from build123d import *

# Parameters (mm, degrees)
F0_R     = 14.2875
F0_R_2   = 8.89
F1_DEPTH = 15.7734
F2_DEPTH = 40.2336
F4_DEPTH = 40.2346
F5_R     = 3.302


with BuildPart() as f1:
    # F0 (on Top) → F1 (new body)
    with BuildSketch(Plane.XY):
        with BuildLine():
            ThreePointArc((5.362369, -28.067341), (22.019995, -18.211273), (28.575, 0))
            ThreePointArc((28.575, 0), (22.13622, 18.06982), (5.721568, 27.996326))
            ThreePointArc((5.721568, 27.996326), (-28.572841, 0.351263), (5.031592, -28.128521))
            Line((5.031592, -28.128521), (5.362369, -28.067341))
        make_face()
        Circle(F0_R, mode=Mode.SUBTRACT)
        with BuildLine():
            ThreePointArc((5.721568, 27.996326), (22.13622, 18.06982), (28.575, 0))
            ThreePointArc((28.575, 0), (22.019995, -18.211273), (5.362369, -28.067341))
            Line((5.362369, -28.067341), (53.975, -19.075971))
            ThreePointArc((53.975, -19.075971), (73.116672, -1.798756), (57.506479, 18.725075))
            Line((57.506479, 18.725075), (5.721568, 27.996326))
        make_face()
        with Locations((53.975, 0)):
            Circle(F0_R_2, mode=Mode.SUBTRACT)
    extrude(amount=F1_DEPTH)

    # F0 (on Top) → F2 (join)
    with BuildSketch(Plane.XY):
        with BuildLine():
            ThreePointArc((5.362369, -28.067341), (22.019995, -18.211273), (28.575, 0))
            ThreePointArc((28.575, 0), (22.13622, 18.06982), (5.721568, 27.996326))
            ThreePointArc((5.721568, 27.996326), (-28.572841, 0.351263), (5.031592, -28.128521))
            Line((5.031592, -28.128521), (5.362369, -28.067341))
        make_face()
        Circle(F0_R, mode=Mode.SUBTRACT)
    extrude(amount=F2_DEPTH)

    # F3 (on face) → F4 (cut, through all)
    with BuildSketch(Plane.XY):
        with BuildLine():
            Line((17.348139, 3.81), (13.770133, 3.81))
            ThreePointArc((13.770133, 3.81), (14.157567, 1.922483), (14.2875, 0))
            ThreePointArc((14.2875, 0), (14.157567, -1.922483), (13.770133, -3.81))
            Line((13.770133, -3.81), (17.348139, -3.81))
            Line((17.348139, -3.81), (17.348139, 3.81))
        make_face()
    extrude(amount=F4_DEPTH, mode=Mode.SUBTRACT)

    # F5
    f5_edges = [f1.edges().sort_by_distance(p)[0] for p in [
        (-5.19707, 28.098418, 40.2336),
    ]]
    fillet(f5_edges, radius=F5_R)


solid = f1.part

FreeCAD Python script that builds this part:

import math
import FreeCAD as App
import Part
import Sketcher
Q = App.Units.Quantity


def edges_at(feature, points):
    """Names of the edges that pass closest to the given points."""
    edges = feature.Shape.Edges
    near = lambda p: min(range(len(edges)), key=lambda i: edges[i].distToShape(Part.Vertex(*p))[0])
    return sorted({f"Edge{near(p) + 1}" for p in points})

doc = App.newDocument("Part")
body = doc.addObject("PartDesign::Body", "Body")

# Sketch on XY plane
sketch1 = doc.addObject("Sketcher::SketchObject", "Sketch")
body.addObject(sketch1)
sketch1.AttachmentSupport = (doc.XY_Plane, [""])
sketch1.MapMode = "FlatFace"
sketch1.addGeometry(Part.LineSegment(App.Vector(5.03, -28.13, 0), App.Vector(5.36, -28.07, 0)), False)
sketch1.addGeometry(Part.LineSegment(App.Vector(5.36, -28.07, 0), App.Vector(53.98, -19.08, 0)), False)
sketch1.addGeometry(Part.ArcOfCircle(Part.Circle(App.Vector(54.15, -0.03, 0), App.Vector(0, 0, 1), 19.05), math.radians(-91), math.radians(80)), False)
sketch1.addGeometry(Part.LineSegment(App.Vector(57.51, 18.73, 0), App.Vector(5.72, 28, 0)), False)
sketch1.addGeometry(Part.ArcOfCircle(Part.Circle(App.Vector(0, 0, 0), App.Vector(0, 0, 1), 28.57), math.radians(78), math.radians(280)), False)
sketch1.addGeometry(Part.Circle(App.Vector(0, 0, 0), App.Vector(0, 0, 1), 14.29), False)
sketch1.addGeometry(Part.Circle(App.Vector(53.98, 0, 0), App.Vector(0, 0, 1), 8.89), False)
sketch1.addConstraint(Sketcher.Constraint("Coincident", 0, 2, 1, 1))
sketch1.addConstraint(Sketcher.Constraint("Coincident", 1, 2, 2, 1))
sketch1.addConstraint(Sketcher.Constraint("Tangent", 2, 2, 3, 1))
sketch1.addConstraint(Sketcher.Constraint("Coincident", 3, 2, 4, 1))
sketch1.addConstraint(Sketcher.Constraint("Coincident", 4, 2, 0, 1))
sketch1.addConstraint(Sketcher.Constraint("Coincident", 4, 3, -1, 1))
sketch1.addConstraint(Sketcher.Constraint("Coincident", 5, 3, -1, 1))
sketch1.addConstraint(Sketcher.Constraint("PointOnObject", 6, 3, -1))
sketch1.addConstraint(Sketcher.Constraint("Parallel", 0, 1))
sketch1.addConstraint(Sketcher.Constraint("Vertical", 6, 3, 1, 2))
sketch1.addConstraint(Sketcher.Constraint("Diameter", 6, Q("0.7 in")))
sketch1.addConstraint(Sketcher.Constraint("Radius", 2, Q("0.75 in")))
sketch1.addConstraint(Sketcher.Constraint("Diameter", 5, Q("1.125 in")))
sketch1.addConstraint(Sketcher.Constraint("Radius", 4, Q("1.125 in")))
sketch1.addConstraint(Sketcher.Constraint("DistanceX", -1, 1, 6, 3, Q("2.125 in")))
sketch1.addConstraint(Sketcher.Constraint("Distance", 3, Q("52.608299 mm")))
sketch1.addConstraint(Sketcher.Constraint("Distance", 1, Q("49.437158 mm")))
sketch1.addConstraint(Sketcher.Constraint("DistanceX", -1, 1, 0, 2, Q("5.362369 mm")))
sketch1.addConstraint(Sketcher.Constraint("DistanceY", 0, 2, -1, 1, Q("28.067341 mm")))
sketch1.addConstraint(Sketcher.Constraint("DistanceX", -1, 1, 2, 2, Q("57.506479 mm")))
pad1 = doc.addObject("PartDesign::Pad", "Pad")
body.addObject(pad1)
pad1.Profile = sketch1
pad1.Length = Q("0.621 in")

# Sketch on XY plane
sketch2 = doc.addObject("Sketcher::SketchObject", "Sketch001")
body.addObject(sketch2)
sketch2.AttachmentSupport = (doc.XY_Plane, [""])
sketch2.MapMode = "FlatFace"
sketch2.addGeometry(Part.ArcOfCircle(Part.Circle(App.Vector(0, 0, 0), App.Vector(0, 0, 1), 28.57), math.radians(-79), math.radians(0)), False)
sketch2.addGeometry(Part.ArcOfCircle(Part.Circle(App.Vector(0, 0, 0), App.Vector(0, 0, 1), 28.57), math.radians(0), math.radians(78)), False)
sketch2.addGeometry(Part.ArcOfCircle(Part.Circle(App.Vector(0, 0, 0), App.Vector(0, 0, 1), 28.57), math.radians(78), math.radians(280)), False)
sketch2.addGeometry(Part.LineSegment(App.Vector(5.03, -28.13, 0), App.Vector(5.36, -28.07, 0)), False)
sketch2.addGeometry(Part.Circle(App.Vector(0, 0, 0), App.Vector(0, 0, 1), 14.29), False)
sketch2.addConstraint(Sketcher.Constraint("Tangent", 0, 2, 1, 1))
sketch2.addConstraint(Sketcher.Constraint("Tangent", 1, 2, 2, 1))
sketch2.addConstraint(Sketcher.Constraint("Coincident", 2, 2, 3, 1))
sketch2.addConstraint(Sketcher.Constraint("Coincident", 3, 2, 0, 1))
sketch2.addConstraint(Sketcher.Constraint("Coincident", 0, 3, -1, 1))
sketch2.addConstraint(Sketcher.Constraint("Coincident", 2, 3, -1, 1))
sketch2.addConstraint(Sketcher.Constraint("Coincident", 4, 3, -1, 1))
sketch2.addConstraint(Sketcher.Constraint("PointOnObject", 0, 2, -1))
sketch2.addConstraint(Sketcher.Constraint("Diameter", 4, Q("1.125 in")))
sketch2.addConstraint(Sketcher.Constraint("Radius", 0, Q("1.125 in")))
sketch2.addConstraint(Sketcher.Constraint("DistanceX", -1, 1, 1, 2, Q("5.721568 mm")))
sketch2.addConstraint(Sketcher.Constraint("DistanceX", -1, 1, 2, 2, Q("5.031592 mm")))
sketch2.addConstraint(Sketcher.Constraint("DistanceX", -1, 1, 3, 2, Q("5.362369 mm")))
pad2 = doc.addObject("PartDesign::Pad", "Pad001")
body.addObject(pad2)
pad2.Profile = sketch2
pad2.Length = Q("1.584 in")

# Sketch on XY plane
sketch3 = doc.addObject("Sketcher::SketchObject", "Sketch002")
body.addObject(sketch3)
sketch3.AttachmentSupport = (doc.XY_Plane, [""])
sketch3.MapMode = "FlatFace"
sketch3.addGeometry(Part.LineSegment(App.Vector(17.3, 3.8, 0), App.Vector(13.8, 3.8, 0)), False)
sketch3.addGeometry(Part.ArcOfCircle(Part.Circle(App.Vector(0, 0, 0), App.Vector(0, 0, 1), 14.3), math.radians(0), math.radians(15.47)), False)
sketch3.addGeometry(Part.ArcOfCircle(Part.Circle(App.Vector(0, 0, 0), App.Vector(0, 0, 1), 14.3), math.radians(-15.47), math.radians(0)), False)
sketch3.addGeometry(Part.LineSegment(App.Vector(13.8, -3.8, 0), App.Vector(17.3, -3.8, 0)), False)
sketch3.addGeometry(Part.LineSegment(App.Vector(17.3, -3.8, 0), App.Vector(17.3, 3.8, 0)), False)
sketch3.addConstraint(Sketcher.Constraint("Coincident", 0, 2, 1, 2))
sketch3.addConstraint(Sketcher.Constraint("Tangent", 1, 1, 2, 2))
sketch3.addConstraint(Sketcher.Constraint("Coincident", 2, 1, 3, 1))
sketch3.addConstraint(Sketcher.Constraint("Coincident", 3, 2, 4, 1))
sketch3.addConstraint(Sketcher.Constraint("Coincident", 4, 2, 0, 1))
sketch3.addConstraint(Sketcher.Constraint("Horizontal", 0))
sketch3.addConstraint(Sketcher.Constraint("Horizontal", 3))
sketch3.addConstraint(Sketcher.Constraint("Vertical", 4))
sketch3.addConstraint(Sketcher.Constraint("Equal", 1, 2))
sketch3.addConstraint(Sketcher.Constraint("Symmetric", 0, 2, 2, 1, -1))
sketch3.addConstraint(Sketcher.Constraint("PointOnObject", 1, 1, -1))
sketch3.addConstraint(Sketcher.Constraint("DistanceY", 4, 1, 4, 2, Q("0.3 in")))
sketch3.addConstraint(Sketcher.Constraint("DistanceX", -1, 1, 1, 1, Q("0.5625 in")))
sketch3.addConstraint(Sketcher.Constraint("Radius", 1, Q("14.287558 mm")))
sketch3.addConstraint(Sketcher.Constraint("DistanceX", 1, 3, 3, 2, Q("0.6829999 in")))
pocket1 = doc.addObject("PartDesign::Pocket", "Pocket")
body.addObject(pocket1)
pocket1.Profile = sketch3
pocket1.Type = "ThroughAll"
pocket1.Reversed = True
doc.recompute()

fillet = doc.addObject("PartDesign::Fillet", "Fillet")
body.addObject(fillet)
fillet.Base = (pocket1, edges_at(pocket1, [(-28.573, 0.351, 40.234)]))
fillet.Radius = Q("0.13 in")

doc.recompute()
